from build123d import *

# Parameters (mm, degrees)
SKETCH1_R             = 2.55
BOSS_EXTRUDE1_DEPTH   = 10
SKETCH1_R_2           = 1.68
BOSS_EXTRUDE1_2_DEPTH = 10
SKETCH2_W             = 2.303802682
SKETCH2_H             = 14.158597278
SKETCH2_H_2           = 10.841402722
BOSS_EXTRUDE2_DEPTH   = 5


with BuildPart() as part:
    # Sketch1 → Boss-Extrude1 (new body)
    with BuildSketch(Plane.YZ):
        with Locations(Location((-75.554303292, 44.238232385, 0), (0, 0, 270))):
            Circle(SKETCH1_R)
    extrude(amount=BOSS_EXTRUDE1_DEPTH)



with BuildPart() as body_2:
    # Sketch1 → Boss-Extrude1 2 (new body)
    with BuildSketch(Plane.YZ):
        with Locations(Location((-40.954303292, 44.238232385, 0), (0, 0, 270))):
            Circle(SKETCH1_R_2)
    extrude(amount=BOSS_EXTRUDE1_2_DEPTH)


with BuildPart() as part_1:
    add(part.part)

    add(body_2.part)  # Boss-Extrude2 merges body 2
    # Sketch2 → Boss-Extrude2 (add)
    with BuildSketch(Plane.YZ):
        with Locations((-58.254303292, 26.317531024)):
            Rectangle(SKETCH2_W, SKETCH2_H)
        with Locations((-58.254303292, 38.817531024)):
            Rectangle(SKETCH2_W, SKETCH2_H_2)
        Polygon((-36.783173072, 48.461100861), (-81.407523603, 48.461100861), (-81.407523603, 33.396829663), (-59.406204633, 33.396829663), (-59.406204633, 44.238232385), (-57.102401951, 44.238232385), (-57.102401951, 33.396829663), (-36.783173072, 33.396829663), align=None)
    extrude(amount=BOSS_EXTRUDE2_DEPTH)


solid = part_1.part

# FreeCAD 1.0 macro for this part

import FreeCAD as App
import Part
import Sketcher
Q = App.Units.Quantity


def add_polygon(sketch, points):
    """Adds a closed chain of lines whose ends are joined by coincident constraints."""
    first, n = sketch.GeometryCount, len(points)
    for a, b in zip(points, points[1:] + points[:1]):
        sketch.addGeometry(Part.LineSegment(App.Vector(*a, 0), App.Vector(*b, 0)), False)
    for i in range(n):
        sketch.addConstraint(Sketcher.Constraint("Coincident", first + i, 2, first + (i + 1) % n, 1))

doc = App.newDocument("Part")
body = doc.addObject("PartDesign::Body", "Body")

# Sketch on YZ plane
sketch1 = body.newObject("Sketcher::SketchObject", "Sketch")
sketch1.AttachmentSupport = (doc.getObject("YZ_Plane"), [""])
sketch1.MapMode = "FlatFace"
sketch1.addGeometry(Part.Circle(App.Vector(-75.6, 44.2, 0), App.Vector(0, 0, 1), 2.5), False)
sketch1.addConstraint([
    Sketcher.Constraint("Diameter", 0, Q("5.1 mm")),
    Sketcher.Constraint("DistanceX", 0, 3, -1, 1, Q("75.554303 mm")),
    Sketcher.Constraint("DistanceY", -1, 1, 0, 3, Q("44.238232 mm")),
])
pad1 = body.newObject("PartDesign::Pad", "Pad")
pad1.Profile = sketch1
pad1.Length = 10
body2 = doc.addObject("PartDesign::Body", "Body001")

# Sketch on YZ plane
sketch2 = body2.newObject("Sketcher::SketchObject", "Sketch001")
sketch2.AttachmentSupport = (doc.getObject("YZ_Plane001"), [""])
sketch2.MapMode = "FlatFace"
sketch2.addGeometry(Part.Circle(App.Vector(-41, 44.2, 0), App.Vector(0, 0, 1), 1.7), False)
sketch2.addConstraint([
    Sketcher.Constraint("Diameter", 0, Q("3.36 mm")),
    Sketcher.Constraint("DistanceX", 0, 3, -1, 1, Q("40.954303 mm")),
    Sketcher.Constraint("DistanceY", -1, 1, 0, 3, Q("44.238232 mm")),
])
pad2 = body2.newObject("PartDesign::Pad", "Pad001")
pad2.Profile = sketch2
pad2.Length = 10
body.AllowCompound = True
doc.recompute()

boolean = body.newObject("PartDesign::Boolean", "Boolean")
boolean.Type = "Fuse"
boolean.addObjects([body2])

# Sketch on YZ plane
sketch3 = body.newObject("Sketcher::SketchObject", "Sketch002")
sketch3.AttachmentSupport = (doc.getObject("YZ_Plane"), [""])
sketch3.MapMode = "FlatFace"
add_polygon(sketch3, [(-59.4, 19.2), (-57.1, 19.2), (-57.1, 33.4), (-36.8, 33.4), (-36.8, 48.5), (-81.4, 48.5), (-81.4, 33.4), (-59.4, 33.4)])  # lines 0-7
sketch3.addConstraint([
    Sketcher.Constraint("Horizontal", 0),
    Sketcher.Constraint("Vertical", 1),
    Sketcher.Constraint("Horizontal", 2),
    Sketcher.Constraint("Vertical", 3),
    Sketcher.Constraint("Horizontal", 4),
    Sketcher.Constraint("Vertical", 5),
    Sketcher.Constraint("Horizontal", 6),
    Sketcher.Constraint("Vertical", 7),
    Sketcher.Constraint("Horizontal", 2, 2, 5, 2),
    Sketcher.Constraint("DistanceX", 2, 1, 2, 2, Q("20.319229 mm")),
    Sketcher.Constraint("DistanceX", 4, 2, 4, 1, Q("44.624351 mm")),
    Sketcher.Constraint("DistanceX", 6, 1, 6, 2, Q("22.001319 mm")),
    Sketcher.Constraint("DistanceY", 3, 1, 3, 2, Q("15.064271 mm")),
    Sketcher.Constraint("DistanceX", 0, 2, -1, 1, Q("57.102402 mm")),
    Sketcher.Constraint("DistanceY", -1, 1, 3, 2, Q("48.461101 mm")),
    Sketcher.Constraint("DistanceY", 1, 1, 1, 2, Q("14.158597 mm")),
])
pad3 = body.newObject("PartDesign::Pad", "Pad002")
pad3.Profile = sketch3
pad3.Length = 5

doc.recompute()
